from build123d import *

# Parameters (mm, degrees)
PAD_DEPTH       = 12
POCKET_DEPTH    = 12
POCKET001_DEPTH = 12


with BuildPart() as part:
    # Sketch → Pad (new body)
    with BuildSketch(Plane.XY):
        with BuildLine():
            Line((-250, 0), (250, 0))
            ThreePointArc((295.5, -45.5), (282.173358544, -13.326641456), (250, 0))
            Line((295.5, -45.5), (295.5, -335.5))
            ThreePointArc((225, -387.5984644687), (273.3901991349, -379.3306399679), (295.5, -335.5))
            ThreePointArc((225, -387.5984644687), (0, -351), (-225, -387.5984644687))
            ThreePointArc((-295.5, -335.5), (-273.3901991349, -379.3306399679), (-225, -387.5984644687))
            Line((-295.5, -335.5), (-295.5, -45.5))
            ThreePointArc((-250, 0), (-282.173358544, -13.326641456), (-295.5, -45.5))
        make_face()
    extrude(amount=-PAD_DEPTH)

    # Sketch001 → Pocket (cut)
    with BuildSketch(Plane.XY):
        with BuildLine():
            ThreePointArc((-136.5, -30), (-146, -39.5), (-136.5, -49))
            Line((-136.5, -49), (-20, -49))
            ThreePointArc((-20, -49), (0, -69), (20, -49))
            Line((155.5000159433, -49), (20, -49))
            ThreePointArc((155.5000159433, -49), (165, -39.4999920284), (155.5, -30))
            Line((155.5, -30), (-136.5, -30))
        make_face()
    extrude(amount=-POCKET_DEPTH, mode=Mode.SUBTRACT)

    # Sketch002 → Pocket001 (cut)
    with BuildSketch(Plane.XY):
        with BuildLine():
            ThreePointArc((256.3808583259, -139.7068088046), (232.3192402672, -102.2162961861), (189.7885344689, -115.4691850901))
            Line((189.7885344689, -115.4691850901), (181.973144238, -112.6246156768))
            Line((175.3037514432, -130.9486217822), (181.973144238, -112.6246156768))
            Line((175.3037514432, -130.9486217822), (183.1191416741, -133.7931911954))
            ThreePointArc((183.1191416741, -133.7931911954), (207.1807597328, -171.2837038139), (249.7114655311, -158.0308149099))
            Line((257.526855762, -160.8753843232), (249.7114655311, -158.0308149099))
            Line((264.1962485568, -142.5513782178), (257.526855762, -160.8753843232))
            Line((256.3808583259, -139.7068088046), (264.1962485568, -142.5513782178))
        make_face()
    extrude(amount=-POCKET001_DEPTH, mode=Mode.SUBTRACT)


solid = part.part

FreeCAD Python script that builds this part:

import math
import FreeCAD as App
import Part
import Sketcher
from FreeCAD import Vector
Q = App.Units.Quantity

doc = App.newDocument("Part")
body = doc.addObject("PartDesign::Body", "Body")

sketch1 = doc.addObject("Sketcher::SketchObject", "Sketch")
body.addObject(sketch1)
sketch1.AttachmentSupport = (doc.XY_Plane, [""])
sketch1.MapMode = "FlatFace"
sketch1.addGeometry([
    Part.LineSegment(Vector(250, 0, 0), Vector(-250, 0, 0)),
    Part.ArcOfCircle(Part.Circle(Vector(-250, -46, 0), Vector(0, 0, 1), 46), math.radians(90), math.radians(180)),
    Part.LineSegment(Vector(-296, -46, 0), Vector(-296, -336, 0)),
    Part.ArcOfCircle(Part.Circle(Vector(-241, -336, 0), Vector(0, 0, 1), 54), math.radians(180), math.radians(287)),
    Part.ArcOfCircle(Part.Circle(Vector(0, -1061, 0), Vector(0, 0, 1), 710), math.radians(72), math.radians(108)),
    Part.ArcOfCircle(Part.Circle(Vector(241, -336, 0), Vector(0, 0, 1), 54), math.radians(-107), math.radians(0)),
    Part.LineSegment(Vector(296, -336, 0), Vector(296, -46, 0)),
    Part.ArcOfCircle(Part.Circle(Vector(250, -46, 0), Vector(0, 0, 1), 46), math.radians(0), math.radians(90)),
], False)
sketch1.addConstraint([
    Sketcher.Constraint("Tangent", 0, 2, 1, 1),
    Sketcher.Constraint("Tangent", 1, 2, 2, 1),
    Sketcher.Constraint("Tangent", 2, 2, 3, 1),
    Sketcher.Constraint("Coincident", 3, 2, 4, 2),
    Sketcher.Constraint("Coincident", 4, 1, 5, 1),
    Sketcher.Constraint("Tangent", 5, 2, 6, 1),
    Sketcher.Constraint("Tangent", 6, 2, 7, 1),
    Sketcher.Constraint("Tangent", 7, 2, 0, 1),
    Sketcher.Constraint("Horizontal", 0),
    Sketcher.Constraint("Vertical", 2),
    Sketcher.Constraint("Vertical", 6),
    Sketcher.Constraint("Equal", 3, 5),
    Sketcher.Constraint("Equal", 1, 7),
    Sketcher.Constraint("Symmetric", 0, 2, 7, 2, -1, 1),
    Sketcher.Constraint("Symmetric", 3, 2, 4, 1, -2),
    Sketcher.Constraint("Radius", 1, 45.5),
    Sketcher.Constraint("Radius", 3, 54.5),
    Sketcher.Constraint("DistanceX", 0, 2, 0, 1, 500.0),
    Sketcher.Constraint("DistanceY", 2, 2, 2, 1, 290.0),
    Sketcher.Constraint("DistanceX", 3, 2, -1, 1, 225.0),
    Sketcher.Constraint("Radius", 4, 709.92661),
])
pad1 = doc.addObject("PartDesign::Pad", "Pad")
body.addObject(pad1)
pad1.Profile = sketch1
pad1.Length = 12
pad1.Reversed = True

sketch2 = doc.addObject("Sketcher::SketchObject", "Sketch001")
body.addObject(sketch2)
sketch2.AttachmentSupport = (doc.XY_Plane, [""])
sketch2.MapMode = "FlatFace"
sketch2.addGeometry([
    Part.ArcOfCircle(Part.Circle(Vector(-136, -40, 0), Vector(0, 0, 1), 10), math.radians(90), math.radians(270)),
    Part.LineSegment(Vector(-136, -49, 0), Vector(-20, -49, 0)),
    Part.ArcOfCircle(Part.Circle(Vector(0, -49, 0), Vector(0, 0, 1), 20), math.radians(180), math.radians(360)),
    Part.LineSegment(Vector(20, -49, 0), Vector(156, -49, 0)),
    Part.ArcOfCircle(Part.Circle(Vector(156, -40, 0), Vector(0, 0, 1), 10), math.radians(-90), math.radians(90)),
    Part.LineSegment(Vector(156, -30, 0), Vector(-136, -30, 0)),
], False)
sketch2.addConstraint([
    Sketcher.Constraint("Tangent", 0, 2, 1, 1),
    Sketcher.Constraint("Coincident", 1, 2, 2, 1),
    Sketcher.Constraint("Coincident", 2, 2, 3, 1),
    Sketcher.Constraint("Tangent", 3, 2, 4, 1),
    Sketcher.Constraint("Tangent", 4, 2, 5, 1),
    Sketcher.Constraint("Tangent", 5, 2, 0, 1),
    Sketcher.Constraint("Horizontal", 1),
    Sketcher.Constraint("Horizontal", 3),
    Sketcher.Constraint("Horizontal", 5),
    Sketcher.Constraint("Equal", 0, 4),
    Sketcher.Constraint("PointOnObject", 2, 3, -2),
    Sketcher.Constraint("Horizontal", 2, 3, 0, 2),
    Sketcher.Constraint("Radius", 2, 20.0),
    Sketcher.Constraint("Radius", 0, 9.5),
    Sketcher.Constraint("DistanceX", 5, 2, 5, 1, 292.0),
    Sketcher.Constraint("DistanceX", 1, 1, 1, 2, 116.5),
    Sketcher.Constraint("DistanceY", 2, 3, -1, 1, 49.0),
])
pocket1 = doc.addObject("PartDesign::Pocket", "Pocket")
body.addObject(pocket1)
pocket1.Profile = sketch2
pocket1.Length = 12

sketch3 = doc.addObject("Sketcher::SketchObject", "Sketch002")
body.addObject(sketch3)
sketch3.AttachmentSupport = (doc.XY_Plane, [""])
sketch3.MapMode = "FlatFace"
sketch3.addGeometry([
    Part.ArcOfCircle(Part.Circle(Vector(220, -137, 0), Vector(0, 0, 1), 37), math.radians(-5), math.radians(145)),
    Part.LineSegment(Vector(190, -115, 0), Vector(182, -113, 0)),
    Part.LineSegment(Vector(182, -113, 0), Vector(175, -131, 0)),
    Part.LineSegment(Vector(175, -131, 0), Vector(183, -134, 0)),
    Part.ArcOfCircle(Part.Circle(Vector(220, -137, 0), Vector(0, 0, 1), 37), math.radians(175), math.radians(325)),
    Part.LineSegment(Vector(250, -158, 0), Vector(258, -161, 0)),
    Part.LineSegment(Vector(258, -161, 0), Vector(264, -143, 0)),
    Part.LineSegment(Vector(264, -143, 0), Vector(256, -140, 0)),
], False)
sketch3.addConstraint([
    Sketcher.Constraint("Coincident", 0, 2, 1, 1),
    Sketcher.Constraint("Coincident", 1, 2, 2, 1),
    Sketcher.Constraint("Coincident", 2, 2, 3, 1),
    Sketcher.Constraint("Coincident", 3, 2, 4, 1),
    Sketcher.Constraint("Coincident", 4, 2, 5, 1),
    Sketcher.Constraint("Coincident", 5, 2, 6, 1),
    Sketcher.Constraint("Coincident", 6, 2, 7, 1),
    Sketcher.Constraint("Coincident", 7, 2, 0, 1),
    Sketcher.Constraint("Coincident", 4, 3, 0, 3),
    Sketcher.Constraint("Equal", 0, 4),
    Sketcher.Constraint("Perpendicular", 1, 2),
    Sketcher.Constraint("Perpendicular", 2, 3),
    Sketcher.Constraint("Parallel", 3, 5),
    Sketcher.Constraint("Perpendicular", 5, 6),
    Sketcher.Constraint("Perpendicular", 6, 7),
    Sketcher.Constraint("Equal", 1, 3),
    Sketcher.Constraint("Equal", 3, 5),
    Sketcher.Constraint("Equal", 2, 6),
    Sketcher.Constraint("Equal", 5, 7),
    Sketcher.Constraint("Angle", 1, Q("160 deg")),
    Sketcher.Constraint("Radius", 0, 36.75),
    Sketcher.Constraint("Distance", 2, 19.5),
    Sketcher.Constraint("DistanceX", -1, 1, 0, 3, 219.75),
    Sketcher.Constraint("DistanceY", 0, 3, -1, 1, 136.75),
    Sketcher.Constraint("DistanceY", 5, 2, 0, 2, 45.406199),
])
pocket2 = doc.addObject("PartDesign::Pocket", "Pocket001")
body.addObject(pocket2)
pocket2.Profile = sketch3
pocket2.Length = 12

doc.recompute()
